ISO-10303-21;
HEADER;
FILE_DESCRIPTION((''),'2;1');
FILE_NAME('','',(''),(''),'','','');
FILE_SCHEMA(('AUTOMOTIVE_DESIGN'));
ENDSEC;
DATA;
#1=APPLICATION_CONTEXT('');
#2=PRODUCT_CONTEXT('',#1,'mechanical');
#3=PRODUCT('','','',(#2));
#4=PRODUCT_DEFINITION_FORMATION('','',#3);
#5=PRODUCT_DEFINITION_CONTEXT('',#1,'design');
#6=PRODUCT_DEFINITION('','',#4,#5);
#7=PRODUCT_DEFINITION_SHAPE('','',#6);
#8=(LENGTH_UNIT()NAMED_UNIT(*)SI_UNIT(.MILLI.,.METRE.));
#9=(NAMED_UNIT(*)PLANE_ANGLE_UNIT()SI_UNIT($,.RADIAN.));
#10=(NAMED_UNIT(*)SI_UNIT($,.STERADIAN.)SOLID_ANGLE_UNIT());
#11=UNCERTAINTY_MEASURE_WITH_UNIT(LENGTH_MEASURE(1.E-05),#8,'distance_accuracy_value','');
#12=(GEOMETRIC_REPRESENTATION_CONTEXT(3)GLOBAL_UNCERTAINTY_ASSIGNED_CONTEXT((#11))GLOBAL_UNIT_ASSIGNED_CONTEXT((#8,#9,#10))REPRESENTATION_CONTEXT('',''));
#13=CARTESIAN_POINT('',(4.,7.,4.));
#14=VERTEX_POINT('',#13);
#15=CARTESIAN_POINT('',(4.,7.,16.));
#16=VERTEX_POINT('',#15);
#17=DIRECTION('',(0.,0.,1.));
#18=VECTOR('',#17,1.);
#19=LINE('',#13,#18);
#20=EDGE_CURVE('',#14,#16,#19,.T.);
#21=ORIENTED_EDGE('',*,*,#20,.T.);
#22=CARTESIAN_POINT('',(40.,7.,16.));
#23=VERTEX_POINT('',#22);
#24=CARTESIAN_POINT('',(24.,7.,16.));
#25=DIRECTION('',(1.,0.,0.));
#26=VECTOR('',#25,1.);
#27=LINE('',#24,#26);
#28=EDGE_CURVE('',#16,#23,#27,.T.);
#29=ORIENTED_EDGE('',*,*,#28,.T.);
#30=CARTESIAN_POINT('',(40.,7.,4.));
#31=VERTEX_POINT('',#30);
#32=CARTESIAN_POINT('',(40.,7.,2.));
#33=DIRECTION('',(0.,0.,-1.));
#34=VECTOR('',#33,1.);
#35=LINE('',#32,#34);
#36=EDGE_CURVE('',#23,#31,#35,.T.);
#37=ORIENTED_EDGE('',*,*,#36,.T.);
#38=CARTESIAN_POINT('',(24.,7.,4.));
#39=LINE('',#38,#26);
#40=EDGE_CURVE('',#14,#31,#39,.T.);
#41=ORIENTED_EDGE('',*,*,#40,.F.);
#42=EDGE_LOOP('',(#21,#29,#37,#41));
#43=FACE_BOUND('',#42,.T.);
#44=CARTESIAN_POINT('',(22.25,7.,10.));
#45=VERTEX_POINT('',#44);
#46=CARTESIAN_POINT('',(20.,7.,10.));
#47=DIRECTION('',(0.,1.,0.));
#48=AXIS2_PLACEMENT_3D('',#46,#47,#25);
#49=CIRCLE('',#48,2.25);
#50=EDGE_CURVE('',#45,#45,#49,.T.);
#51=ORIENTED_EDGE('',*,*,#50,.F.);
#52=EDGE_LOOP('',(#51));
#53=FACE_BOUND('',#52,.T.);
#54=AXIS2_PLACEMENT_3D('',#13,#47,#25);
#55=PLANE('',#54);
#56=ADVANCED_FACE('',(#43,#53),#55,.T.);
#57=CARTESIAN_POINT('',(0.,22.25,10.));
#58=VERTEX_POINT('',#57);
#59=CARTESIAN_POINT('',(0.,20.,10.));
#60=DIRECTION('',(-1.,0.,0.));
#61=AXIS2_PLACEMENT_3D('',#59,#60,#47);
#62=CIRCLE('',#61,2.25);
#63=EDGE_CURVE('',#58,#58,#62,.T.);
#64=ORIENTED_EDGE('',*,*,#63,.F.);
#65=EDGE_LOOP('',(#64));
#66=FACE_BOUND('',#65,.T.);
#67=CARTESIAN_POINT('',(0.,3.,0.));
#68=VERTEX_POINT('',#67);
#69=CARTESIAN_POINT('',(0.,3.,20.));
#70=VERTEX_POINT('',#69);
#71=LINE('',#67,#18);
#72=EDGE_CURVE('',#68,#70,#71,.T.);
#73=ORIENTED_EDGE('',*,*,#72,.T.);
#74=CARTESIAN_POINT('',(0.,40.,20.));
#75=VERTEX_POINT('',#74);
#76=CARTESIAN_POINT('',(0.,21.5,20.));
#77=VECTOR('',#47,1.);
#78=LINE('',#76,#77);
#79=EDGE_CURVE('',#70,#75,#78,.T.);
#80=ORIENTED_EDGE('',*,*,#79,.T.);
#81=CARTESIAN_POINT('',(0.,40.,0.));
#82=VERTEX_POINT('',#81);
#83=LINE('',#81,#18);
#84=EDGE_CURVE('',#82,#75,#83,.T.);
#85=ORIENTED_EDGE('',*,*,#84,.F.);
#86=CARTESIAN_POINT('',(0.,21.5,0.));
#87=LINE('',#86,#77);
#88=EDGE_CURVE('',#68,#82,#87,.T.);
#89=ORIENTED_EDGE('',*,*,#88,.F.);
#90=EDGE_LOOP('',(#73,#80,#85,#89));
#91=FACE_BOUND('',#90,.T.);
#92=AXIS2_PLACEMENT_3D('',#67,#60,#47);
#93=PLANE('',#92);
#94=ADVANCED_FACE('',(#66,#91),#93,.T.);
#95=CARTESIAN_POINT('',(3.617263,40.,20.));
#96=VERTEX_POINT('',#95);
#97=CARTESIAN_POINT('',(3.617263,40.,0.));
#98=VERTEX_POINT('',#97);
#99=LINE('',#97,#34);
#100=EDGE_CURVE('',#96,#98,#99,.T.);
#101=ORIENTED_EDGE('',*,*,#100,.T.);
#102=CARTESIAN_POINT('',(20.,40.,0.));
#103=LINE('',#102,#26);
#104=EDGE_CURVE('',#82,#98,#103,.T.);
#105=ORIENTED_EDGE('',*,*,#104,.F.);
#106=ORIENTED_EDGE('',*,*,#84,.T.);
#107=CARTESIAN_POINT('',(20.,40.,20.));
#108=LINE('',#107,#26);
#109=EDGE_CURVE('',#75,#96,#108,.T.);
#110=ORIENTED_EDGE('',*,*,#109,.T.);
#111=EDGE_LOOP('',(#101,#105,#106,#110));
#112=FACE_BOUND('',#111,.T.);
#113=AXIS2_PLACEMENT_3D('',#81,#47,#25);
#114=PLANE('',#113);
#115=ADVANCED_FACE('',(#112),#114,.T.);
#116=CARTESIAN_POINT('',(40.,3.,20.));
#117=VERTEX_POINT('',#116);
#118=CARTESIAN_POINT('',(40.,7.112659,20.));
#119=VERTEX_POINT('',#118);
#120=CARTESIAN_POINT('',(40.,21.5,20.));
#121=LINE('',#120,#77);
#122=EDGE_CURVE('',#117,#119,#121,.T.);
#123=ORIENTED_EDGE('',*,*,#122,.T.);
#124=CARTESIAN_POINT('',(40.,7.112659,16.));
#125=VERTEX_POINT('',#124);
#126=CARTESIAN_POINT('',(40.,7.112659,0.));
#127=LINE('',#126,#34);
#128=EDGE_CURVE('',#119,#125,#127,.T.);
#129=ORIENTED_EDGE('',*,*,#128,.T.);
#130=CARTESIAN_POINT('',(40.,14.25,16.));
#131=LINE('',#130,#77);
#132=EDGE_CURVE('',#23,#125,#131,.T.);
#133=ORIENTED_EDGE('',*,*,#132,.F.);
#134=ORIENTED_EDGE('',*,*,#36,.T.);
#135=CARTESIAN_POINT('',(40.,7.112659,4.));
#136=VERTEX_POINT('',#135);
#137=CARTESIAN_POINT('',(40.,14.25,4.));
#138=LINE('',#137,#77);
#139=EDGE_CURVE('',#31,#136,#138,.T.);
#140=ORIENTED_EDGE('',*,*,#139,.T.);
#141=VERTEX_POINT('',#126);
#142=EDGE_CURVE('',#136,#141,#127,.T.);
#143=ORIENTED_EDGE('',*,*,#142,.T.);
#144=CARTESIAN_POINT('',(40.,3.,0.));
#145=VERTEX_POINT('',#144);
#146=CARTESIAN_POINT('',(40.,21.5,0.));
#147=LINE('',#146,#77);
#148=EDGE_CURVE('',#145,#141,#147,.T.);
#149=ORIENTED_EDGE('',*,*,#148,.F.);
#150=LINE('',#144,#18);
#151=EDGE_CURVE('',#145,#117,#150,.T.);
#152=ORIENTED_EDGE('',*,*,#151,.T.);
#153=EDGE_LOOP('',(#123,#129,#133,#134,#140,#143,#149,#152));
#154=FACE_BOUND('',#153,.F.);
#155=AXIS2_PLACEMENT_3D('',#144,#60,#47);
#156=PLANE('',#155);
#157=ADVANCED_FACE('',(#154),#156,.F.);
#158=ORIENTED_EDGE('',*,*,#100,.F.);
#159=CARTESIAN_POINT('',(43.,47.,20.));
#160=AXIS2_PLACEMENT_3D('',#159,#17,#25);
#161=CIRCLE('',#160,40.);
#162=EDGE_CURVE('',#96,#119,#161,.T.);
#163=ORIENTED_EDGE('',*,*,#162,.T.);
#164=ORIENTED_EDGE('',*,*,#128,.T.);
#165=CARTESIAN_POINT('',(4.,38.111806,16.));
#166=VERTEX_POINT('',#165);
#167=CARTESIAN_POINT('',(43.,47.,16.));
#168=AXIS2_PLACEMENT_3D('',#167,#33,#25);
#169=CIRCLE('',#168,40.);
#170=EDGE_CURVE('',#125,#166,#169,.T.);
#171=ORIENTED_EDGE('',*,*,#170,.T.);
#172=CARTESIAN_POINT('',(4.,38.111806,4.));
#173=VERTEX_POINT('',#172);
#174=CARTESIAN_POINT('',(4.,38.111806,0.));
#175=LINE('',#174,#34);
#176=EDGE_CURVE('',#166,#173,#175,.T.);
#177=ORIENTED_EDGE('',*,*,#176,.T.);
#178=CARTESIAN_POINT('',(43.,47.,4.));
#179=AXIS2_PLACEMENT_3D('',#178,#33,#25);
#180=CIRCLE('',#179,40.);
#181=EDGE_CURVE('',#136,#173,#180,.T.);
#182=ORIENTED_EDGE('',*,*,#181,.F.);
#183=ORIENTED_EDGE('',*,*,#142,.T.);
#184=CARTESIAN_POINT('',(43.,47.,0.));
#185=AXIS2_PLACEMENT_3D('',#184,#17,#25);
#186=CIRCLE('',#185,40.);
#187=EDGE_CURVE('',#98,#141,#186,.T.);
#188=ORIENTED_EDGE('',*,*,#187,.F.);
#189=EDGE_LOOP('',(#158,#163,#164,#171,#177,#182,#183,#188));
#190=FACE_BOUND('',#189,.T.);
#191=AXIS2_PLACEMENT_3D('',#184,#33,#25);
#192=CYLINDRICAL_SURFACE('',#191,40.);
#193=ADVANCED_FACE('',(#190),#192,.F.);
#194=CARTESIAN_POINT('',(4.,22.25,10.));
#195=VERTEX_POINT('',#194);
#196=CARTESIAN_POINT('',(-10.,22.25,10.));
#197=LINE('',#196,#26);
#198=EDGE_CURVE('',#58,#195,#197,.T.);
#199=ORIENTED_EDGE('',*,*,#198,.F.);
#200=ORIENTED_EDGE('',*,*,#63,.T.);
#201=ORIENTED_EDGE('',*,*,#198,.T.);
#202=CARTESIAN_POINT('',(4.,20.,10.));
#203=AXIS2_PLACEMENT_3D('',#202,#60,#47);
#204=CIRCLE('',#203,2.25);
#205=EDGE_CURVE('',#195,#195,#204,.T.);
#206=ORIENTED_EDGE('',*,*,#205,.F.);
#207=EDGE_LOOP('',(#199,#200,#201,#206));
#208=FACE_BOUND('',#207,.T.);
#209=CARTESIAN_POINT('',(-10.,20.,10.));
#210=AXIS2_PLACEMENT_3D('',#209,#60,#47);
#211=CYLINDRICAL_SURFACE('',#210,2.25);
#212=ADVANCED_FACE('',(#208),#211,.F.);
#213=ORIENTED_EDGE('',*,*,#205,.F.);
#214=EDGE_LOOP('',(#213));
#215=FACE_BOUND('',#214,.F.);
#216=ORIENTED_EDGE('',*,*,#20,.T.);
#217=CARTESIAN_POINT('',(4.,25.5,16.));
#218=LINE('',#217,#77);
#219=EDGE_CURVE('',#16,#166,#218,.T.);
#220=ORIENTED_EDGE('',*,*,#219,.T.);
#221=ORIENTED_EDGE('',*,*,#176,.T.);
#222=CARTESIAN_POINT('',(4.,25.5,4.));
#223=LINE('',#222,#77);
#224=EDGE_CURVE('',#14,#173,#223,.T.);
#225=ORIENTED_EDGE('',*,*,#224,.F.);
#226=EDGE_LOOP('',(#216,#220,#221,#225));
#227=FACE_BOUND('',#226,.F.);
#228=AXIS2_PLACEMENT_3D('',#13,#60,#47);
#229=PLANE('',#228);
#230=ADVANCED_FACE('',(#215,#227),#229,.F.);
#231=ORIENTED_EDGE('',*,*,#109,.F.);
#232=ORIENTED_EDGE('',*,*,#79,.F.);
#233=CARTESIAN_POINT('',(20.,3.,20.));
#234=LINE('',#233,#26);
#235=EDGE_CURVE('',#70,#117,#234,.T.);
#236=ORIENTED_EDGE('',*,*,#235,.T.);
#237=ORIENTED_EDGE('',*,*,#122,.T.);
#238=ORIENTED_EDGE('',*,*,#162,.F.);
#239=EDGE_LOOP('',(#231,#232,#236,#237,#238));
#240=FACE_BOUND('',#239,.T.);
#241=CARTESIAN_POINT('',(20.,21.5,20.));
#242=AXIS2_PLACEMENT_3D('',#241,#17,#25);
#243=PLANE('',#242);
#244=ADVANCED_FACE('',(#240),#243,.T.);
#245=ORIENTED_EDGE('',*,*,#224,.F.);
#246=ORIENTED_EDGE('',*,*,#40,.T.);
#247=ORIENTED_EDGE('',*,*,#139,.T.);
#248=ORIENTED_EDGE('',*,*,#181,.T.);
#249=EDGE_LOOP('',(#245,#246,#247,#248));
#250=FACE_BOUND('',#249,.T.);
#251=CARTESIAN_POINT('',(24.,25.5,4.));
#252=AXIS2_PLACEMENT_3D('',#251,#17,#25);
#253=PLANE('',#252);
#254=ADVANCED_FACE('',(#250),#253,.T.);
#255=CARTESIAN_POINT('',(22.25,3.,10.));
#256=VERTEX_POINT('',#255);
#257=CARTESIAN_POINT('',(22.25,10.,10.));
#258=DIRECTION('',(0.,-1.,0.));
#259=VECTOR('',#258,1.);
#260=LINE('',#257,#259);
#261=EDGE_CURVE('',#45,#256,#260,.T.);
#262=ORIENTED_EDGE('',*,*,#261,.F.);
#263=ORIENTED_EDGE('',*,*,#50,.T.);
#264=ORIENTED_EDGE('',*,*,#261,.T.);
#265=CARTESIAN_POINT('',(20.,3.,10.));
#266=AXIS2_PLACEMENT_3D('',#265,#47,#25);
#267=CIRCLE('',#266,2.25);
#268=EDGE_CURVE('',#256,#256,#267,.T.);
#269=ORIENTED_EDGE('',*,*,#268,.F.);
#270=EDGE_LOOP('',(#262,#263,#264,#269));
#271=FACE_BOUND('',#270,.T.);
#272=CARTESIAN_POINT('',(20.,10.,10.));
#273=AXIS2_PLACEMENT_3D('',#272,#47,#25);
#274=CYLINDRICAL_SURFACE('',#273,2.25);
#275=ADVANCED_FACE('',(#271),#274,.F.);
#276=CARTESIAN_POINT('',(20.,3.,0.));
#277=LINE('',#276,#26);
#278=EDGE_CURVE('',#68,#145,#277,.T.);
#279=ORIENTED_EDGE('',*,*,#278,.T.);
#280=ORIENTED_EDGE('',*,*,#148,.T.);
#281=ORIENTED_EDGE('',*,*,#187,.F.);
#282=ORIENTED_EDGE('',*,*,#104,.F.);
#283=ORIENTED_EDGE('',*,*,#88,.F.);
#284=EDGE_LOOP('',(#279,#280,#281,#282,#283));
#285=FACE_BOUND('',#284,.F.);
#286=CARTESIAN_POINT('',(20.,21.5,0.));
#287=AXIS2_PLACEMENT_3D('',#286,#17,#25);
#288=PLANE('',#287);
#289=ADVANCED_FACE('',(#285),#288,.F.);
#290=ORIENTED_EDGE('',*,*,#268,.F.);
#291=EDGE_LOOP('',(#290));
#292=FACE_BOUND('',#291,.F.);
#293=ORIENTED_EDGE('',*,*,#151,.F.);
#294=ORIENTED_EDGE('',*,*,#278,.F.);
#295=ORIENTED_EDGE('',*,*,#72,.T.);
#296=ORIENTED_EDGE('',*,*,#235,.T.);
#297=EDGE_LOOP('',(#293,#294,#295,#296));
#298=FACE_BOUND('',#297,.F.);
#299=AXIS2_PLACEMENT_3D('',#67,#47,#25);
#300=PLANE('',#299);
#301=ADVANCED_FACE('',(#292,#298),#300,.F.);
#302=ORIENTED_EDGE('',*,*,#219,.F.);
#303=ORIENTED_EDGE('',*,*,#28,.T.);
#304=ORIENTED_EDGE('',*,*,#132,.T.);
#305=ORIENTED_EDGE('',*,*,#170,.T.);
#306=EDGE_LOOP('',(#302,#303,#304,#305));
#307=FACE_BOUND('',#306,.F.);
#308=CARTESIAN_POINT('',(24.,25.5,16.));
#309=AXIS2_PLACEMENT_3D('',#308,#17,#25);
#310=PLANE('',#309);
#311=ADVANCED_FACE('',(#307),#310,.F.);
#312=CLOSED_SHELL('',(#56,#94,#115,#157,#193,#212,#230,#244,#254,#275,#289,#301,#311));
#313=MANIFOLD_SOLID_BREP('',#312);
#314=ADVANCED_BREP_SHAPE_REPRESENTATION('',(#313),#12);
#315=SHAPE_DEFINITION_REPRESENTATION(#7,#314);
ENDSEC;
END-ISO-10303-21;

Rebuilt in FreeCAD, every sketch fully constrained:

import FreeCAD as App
import Part
import Sketcher

V = App.Vector
Q = App.Units.Quantity

doc = App.newDocument("Part")
params = doc.addObject("Spreadsheet::Sheet", "Params")
for row, (alias, value) in enumerate([
    ("sketch1_diameter", "80 mm"),
    ("pad1_length", "20 mm"),
    ("sketch2_diameter", "4.5 mm"),
    ("pad2_length", "20 mm"),
    ("sketch3_width", "40 mm"),
    ("sketch3_height", "37 mm"),
    ("pad3_length", "12 mm"),
    ("sketch4_width", "40 mm"),
    ("sketch4_height", "37 mm"),
    ("pad4_length", "20 mm"),
], start=1):
    params.set(f"A{row}", alias)
    params.set(f"B{row}", "=" + value)
    params.setAlias(f"B{row}", alias)

body = doc.addObject("PartDesign::Body", "Body")

sketch1 = body.newObject("Sketcher::SketchObject", "Sketch")
sketch1.AttachmentSupport = (doc.getObject("XY_Plane"), [""])
sketch1.MapMode = "FlatFace"
sketch1.addGeometry(Part.Circle(V(43, 47, 0), V(0, 0, 1), 40), False)
sketch1.addConstraint([
    Sketcher.Constraint("Diameter", 0, Q("80 mm")),
    Sketcher.Constraint("DistanceX", -1, 1, 0, 3, Q("43 mm")),
    Sketcher.Constraint("DistanceY", -1, 1, 0, 3, Q("47 mm")),
])
sketch1.setExpression("Constraints[0]", "Params.sketch1_diameter")
pad1 = body.newObject("PartDesign::Pad", "Pad")
pad1.Profile = sketch1
pad1.setExpression("Length", "Params.pad1_length")
body2 = doc.addObject("PartDesign::Body", "Body001")

sketch2 = body2.newObject("Sketcher::SketchObject", "Sketch001")
sketch2.AttachmentSupport = (doc.getObject("XZ_Plane001"), [""])
sketch2.MapMode = "FlatFace"
sketch2.AttachmentOffset = App.Placement(V(0, 0, -10), App.Rotation())
sketch2.addGeometry(Part.Circle(V(20, 10, 0), V(0, 0, 1), 2.25), False)
sketch2.addConstraint([
    Sketcher.Constraint("Diameter", 0, Q("4.5 mm")),
    Sketcher.Constraint("DistanceX", -1, 1, 0, 3, Q("20 mm")),
    Sketcher.Constraint("DistanceY", -1, 1, 0, 3, Q("10 mm")),
])
sketch2.setExpression("Constraints[0]", "Params.sketch2_diameter")
pad2 = body2.newObject("PartDesign::Pad", "Pad001")
pad2.Profile = sketch2
pad2.setExpression("Length", "Params.pad2_length")
body3 = doc.addObject("PartDesign::Body", "Body002")
body3.AllowCompound = True
doc.recompute()

body3.BaseFeature = body2
doc.recompute()

body2.Placement = App.Placement(V(0, 0, 0), App.Rotation(V(0, 0, 1), 90))
boolean = body3.newObject("PartDesign::Boolean", "Boolean")
boolean.Type = "Fuse"
boolean.addObjects([body2])
body4 = doc.addObject("PartDesign::Body", "Body003")

sketch3 = body4.newObject("Sketcher::SketchObject", "Sketch002")
sketch3.AttachmentSupport = (doc.getObject("XY_Plane003"), [""])
sketch3.MapMode = "FlatFace"
sketch3.AttachmentOffset = App.Placement(V(0, 0, 4), App.Rotation())
sketch3.addGeometry([
    Part.LineSegment(V(4, 44, 0), V(4, 7, 0)),
    Part.LineSegment(V(4, 7, 0), V(44, 7, 0)),
    Part.LineSegment(V(44, 7, 0), V(44, 44, 0)),
    Part.LineSegment(V(44, 44, 0), V(4, 44, 0)),
], False)
sketch3.addConstraint([
    Sketcher.Constraint("Coincident", 0, 2, 1, 1),
    Sketcher.Constraint("Coincident", 1, 2, 2, 1),
    Sketcher.Constraint("Coincident", 2, 2, 3, 1),
    Sketcher.Constraint("Coincident", 3, 2, 0, 1),
    Sketcher.Constraint("Vertical", 0),
    Sketcher.Constraint("Horizontal", 1),
    Sketcher.Constraint("Vertical", 2),
    Sketcher.Constraint("Horizontal", 3),
    Sketcher.Constraint("DistanceX", 1, 1, 1, 2, Q("40 mm")),
    Sketcher.Constraint("DistanceY", 0, 2, 0, 1, Q("37 mm")),
    Sketcher.Constraint("DistanceX", -1, 1, 0, 2, Q("4 mm")),
    Sketcher.Constraint("DistanceY", -1, 1, 0, 2, Q("7 mm")),
])
sketch3.setExpression("Constraints[8]", "Params.sketch3_width")
sketch3.setExpression("Constraints[9]", "Params.sketch3_height")
pad3 = body4.newObject("PartDesign::Pad", "Pad002")
pad3.Profile = sketch3
pad3.setExpression("Length", "Params.pad3_length")
doc.recompute()

boolean2 = body4.newObject("PartDesign::Boolean", "Boolean001")
boolean2.Type = "Fuse"
boolean2.addObjects([body])
doc.recompute()

boolean3 = body4.newObject("PartDesign::Boolean", "Boolean002")
boolean3.Type = "Fuse"
boolean3.addObjects([body3])
body5 = doc.addObject("PartDesign::Body", "Body004")

sketch4 = body5.newObject("Sketcher::SketchObject", "Sketch003")
sketch4.AttachmentSupport = (doc.getObject("XY_Plane004"), [""])
sketch4.MapMode = "FlatFace"
sketch4.addGeometry([
    Part.LineSegment(V(0, 40, 0), V(0, 3, 0)),
    Part.LineSegment(V(0, 3, 0), V(40, 3, 0)),
    Part.LineSegment(V(40, 3, 0), V(40, 40, 0)),
    Part.LineSegment(V(40, 40, 0), V(0, 40, 0)),
], False)
sketch4.addConstraint([
    Sketcher.Constraint("Coincident", 0, 2, 1, 1),
    Sketcher.Constraint("Coincident", 1, 2, 2, 1),
    Sketcher.Constraint("Coincident", 2, 2, 3, 1),
    Sketcher.Constraint("Coincident", 3, 2, 0, 1),
    Sketcher.Constraint("Vertical", 0),
    Sketcher.Constraint("Horizontal", 1),
    Sketcher.Constraint("Vertical", 2),
    Sketcher.Constraint("Horizontal", 3),
    Sketcher.Constraint("PointOnObject", 0, 2, -2),
    Sketcher.Constraint("DistanceX", 1, 1, 1, 2, Q("40 mm")),
    Sketcher.Constraint("DistanceY", 0, 2, 0, 1, Q("37 mm")),
    Sketcher.Constraint("DistanceY", -1, 1, 0, 2, Q("3 mm")),
])
sketch4.setExpression("Constraints[9]", "Params.sketch4_width")
sketch4.setExpression("Constraints[10]", "Params.sketch4_height")
pad4 = body5.newObject("PartDesign::Pad", "Pad003")
pad4.Profile = sketch4
pad4.setExpression("Length", "Params.pad4_length")
doc.recompute()

boolean4 = body5.newObject("PartDesign::Boolean", "Boolean003")
boolean4.Type = "Cut"
boolean4.addObjects([body4])

doc.recompute()
